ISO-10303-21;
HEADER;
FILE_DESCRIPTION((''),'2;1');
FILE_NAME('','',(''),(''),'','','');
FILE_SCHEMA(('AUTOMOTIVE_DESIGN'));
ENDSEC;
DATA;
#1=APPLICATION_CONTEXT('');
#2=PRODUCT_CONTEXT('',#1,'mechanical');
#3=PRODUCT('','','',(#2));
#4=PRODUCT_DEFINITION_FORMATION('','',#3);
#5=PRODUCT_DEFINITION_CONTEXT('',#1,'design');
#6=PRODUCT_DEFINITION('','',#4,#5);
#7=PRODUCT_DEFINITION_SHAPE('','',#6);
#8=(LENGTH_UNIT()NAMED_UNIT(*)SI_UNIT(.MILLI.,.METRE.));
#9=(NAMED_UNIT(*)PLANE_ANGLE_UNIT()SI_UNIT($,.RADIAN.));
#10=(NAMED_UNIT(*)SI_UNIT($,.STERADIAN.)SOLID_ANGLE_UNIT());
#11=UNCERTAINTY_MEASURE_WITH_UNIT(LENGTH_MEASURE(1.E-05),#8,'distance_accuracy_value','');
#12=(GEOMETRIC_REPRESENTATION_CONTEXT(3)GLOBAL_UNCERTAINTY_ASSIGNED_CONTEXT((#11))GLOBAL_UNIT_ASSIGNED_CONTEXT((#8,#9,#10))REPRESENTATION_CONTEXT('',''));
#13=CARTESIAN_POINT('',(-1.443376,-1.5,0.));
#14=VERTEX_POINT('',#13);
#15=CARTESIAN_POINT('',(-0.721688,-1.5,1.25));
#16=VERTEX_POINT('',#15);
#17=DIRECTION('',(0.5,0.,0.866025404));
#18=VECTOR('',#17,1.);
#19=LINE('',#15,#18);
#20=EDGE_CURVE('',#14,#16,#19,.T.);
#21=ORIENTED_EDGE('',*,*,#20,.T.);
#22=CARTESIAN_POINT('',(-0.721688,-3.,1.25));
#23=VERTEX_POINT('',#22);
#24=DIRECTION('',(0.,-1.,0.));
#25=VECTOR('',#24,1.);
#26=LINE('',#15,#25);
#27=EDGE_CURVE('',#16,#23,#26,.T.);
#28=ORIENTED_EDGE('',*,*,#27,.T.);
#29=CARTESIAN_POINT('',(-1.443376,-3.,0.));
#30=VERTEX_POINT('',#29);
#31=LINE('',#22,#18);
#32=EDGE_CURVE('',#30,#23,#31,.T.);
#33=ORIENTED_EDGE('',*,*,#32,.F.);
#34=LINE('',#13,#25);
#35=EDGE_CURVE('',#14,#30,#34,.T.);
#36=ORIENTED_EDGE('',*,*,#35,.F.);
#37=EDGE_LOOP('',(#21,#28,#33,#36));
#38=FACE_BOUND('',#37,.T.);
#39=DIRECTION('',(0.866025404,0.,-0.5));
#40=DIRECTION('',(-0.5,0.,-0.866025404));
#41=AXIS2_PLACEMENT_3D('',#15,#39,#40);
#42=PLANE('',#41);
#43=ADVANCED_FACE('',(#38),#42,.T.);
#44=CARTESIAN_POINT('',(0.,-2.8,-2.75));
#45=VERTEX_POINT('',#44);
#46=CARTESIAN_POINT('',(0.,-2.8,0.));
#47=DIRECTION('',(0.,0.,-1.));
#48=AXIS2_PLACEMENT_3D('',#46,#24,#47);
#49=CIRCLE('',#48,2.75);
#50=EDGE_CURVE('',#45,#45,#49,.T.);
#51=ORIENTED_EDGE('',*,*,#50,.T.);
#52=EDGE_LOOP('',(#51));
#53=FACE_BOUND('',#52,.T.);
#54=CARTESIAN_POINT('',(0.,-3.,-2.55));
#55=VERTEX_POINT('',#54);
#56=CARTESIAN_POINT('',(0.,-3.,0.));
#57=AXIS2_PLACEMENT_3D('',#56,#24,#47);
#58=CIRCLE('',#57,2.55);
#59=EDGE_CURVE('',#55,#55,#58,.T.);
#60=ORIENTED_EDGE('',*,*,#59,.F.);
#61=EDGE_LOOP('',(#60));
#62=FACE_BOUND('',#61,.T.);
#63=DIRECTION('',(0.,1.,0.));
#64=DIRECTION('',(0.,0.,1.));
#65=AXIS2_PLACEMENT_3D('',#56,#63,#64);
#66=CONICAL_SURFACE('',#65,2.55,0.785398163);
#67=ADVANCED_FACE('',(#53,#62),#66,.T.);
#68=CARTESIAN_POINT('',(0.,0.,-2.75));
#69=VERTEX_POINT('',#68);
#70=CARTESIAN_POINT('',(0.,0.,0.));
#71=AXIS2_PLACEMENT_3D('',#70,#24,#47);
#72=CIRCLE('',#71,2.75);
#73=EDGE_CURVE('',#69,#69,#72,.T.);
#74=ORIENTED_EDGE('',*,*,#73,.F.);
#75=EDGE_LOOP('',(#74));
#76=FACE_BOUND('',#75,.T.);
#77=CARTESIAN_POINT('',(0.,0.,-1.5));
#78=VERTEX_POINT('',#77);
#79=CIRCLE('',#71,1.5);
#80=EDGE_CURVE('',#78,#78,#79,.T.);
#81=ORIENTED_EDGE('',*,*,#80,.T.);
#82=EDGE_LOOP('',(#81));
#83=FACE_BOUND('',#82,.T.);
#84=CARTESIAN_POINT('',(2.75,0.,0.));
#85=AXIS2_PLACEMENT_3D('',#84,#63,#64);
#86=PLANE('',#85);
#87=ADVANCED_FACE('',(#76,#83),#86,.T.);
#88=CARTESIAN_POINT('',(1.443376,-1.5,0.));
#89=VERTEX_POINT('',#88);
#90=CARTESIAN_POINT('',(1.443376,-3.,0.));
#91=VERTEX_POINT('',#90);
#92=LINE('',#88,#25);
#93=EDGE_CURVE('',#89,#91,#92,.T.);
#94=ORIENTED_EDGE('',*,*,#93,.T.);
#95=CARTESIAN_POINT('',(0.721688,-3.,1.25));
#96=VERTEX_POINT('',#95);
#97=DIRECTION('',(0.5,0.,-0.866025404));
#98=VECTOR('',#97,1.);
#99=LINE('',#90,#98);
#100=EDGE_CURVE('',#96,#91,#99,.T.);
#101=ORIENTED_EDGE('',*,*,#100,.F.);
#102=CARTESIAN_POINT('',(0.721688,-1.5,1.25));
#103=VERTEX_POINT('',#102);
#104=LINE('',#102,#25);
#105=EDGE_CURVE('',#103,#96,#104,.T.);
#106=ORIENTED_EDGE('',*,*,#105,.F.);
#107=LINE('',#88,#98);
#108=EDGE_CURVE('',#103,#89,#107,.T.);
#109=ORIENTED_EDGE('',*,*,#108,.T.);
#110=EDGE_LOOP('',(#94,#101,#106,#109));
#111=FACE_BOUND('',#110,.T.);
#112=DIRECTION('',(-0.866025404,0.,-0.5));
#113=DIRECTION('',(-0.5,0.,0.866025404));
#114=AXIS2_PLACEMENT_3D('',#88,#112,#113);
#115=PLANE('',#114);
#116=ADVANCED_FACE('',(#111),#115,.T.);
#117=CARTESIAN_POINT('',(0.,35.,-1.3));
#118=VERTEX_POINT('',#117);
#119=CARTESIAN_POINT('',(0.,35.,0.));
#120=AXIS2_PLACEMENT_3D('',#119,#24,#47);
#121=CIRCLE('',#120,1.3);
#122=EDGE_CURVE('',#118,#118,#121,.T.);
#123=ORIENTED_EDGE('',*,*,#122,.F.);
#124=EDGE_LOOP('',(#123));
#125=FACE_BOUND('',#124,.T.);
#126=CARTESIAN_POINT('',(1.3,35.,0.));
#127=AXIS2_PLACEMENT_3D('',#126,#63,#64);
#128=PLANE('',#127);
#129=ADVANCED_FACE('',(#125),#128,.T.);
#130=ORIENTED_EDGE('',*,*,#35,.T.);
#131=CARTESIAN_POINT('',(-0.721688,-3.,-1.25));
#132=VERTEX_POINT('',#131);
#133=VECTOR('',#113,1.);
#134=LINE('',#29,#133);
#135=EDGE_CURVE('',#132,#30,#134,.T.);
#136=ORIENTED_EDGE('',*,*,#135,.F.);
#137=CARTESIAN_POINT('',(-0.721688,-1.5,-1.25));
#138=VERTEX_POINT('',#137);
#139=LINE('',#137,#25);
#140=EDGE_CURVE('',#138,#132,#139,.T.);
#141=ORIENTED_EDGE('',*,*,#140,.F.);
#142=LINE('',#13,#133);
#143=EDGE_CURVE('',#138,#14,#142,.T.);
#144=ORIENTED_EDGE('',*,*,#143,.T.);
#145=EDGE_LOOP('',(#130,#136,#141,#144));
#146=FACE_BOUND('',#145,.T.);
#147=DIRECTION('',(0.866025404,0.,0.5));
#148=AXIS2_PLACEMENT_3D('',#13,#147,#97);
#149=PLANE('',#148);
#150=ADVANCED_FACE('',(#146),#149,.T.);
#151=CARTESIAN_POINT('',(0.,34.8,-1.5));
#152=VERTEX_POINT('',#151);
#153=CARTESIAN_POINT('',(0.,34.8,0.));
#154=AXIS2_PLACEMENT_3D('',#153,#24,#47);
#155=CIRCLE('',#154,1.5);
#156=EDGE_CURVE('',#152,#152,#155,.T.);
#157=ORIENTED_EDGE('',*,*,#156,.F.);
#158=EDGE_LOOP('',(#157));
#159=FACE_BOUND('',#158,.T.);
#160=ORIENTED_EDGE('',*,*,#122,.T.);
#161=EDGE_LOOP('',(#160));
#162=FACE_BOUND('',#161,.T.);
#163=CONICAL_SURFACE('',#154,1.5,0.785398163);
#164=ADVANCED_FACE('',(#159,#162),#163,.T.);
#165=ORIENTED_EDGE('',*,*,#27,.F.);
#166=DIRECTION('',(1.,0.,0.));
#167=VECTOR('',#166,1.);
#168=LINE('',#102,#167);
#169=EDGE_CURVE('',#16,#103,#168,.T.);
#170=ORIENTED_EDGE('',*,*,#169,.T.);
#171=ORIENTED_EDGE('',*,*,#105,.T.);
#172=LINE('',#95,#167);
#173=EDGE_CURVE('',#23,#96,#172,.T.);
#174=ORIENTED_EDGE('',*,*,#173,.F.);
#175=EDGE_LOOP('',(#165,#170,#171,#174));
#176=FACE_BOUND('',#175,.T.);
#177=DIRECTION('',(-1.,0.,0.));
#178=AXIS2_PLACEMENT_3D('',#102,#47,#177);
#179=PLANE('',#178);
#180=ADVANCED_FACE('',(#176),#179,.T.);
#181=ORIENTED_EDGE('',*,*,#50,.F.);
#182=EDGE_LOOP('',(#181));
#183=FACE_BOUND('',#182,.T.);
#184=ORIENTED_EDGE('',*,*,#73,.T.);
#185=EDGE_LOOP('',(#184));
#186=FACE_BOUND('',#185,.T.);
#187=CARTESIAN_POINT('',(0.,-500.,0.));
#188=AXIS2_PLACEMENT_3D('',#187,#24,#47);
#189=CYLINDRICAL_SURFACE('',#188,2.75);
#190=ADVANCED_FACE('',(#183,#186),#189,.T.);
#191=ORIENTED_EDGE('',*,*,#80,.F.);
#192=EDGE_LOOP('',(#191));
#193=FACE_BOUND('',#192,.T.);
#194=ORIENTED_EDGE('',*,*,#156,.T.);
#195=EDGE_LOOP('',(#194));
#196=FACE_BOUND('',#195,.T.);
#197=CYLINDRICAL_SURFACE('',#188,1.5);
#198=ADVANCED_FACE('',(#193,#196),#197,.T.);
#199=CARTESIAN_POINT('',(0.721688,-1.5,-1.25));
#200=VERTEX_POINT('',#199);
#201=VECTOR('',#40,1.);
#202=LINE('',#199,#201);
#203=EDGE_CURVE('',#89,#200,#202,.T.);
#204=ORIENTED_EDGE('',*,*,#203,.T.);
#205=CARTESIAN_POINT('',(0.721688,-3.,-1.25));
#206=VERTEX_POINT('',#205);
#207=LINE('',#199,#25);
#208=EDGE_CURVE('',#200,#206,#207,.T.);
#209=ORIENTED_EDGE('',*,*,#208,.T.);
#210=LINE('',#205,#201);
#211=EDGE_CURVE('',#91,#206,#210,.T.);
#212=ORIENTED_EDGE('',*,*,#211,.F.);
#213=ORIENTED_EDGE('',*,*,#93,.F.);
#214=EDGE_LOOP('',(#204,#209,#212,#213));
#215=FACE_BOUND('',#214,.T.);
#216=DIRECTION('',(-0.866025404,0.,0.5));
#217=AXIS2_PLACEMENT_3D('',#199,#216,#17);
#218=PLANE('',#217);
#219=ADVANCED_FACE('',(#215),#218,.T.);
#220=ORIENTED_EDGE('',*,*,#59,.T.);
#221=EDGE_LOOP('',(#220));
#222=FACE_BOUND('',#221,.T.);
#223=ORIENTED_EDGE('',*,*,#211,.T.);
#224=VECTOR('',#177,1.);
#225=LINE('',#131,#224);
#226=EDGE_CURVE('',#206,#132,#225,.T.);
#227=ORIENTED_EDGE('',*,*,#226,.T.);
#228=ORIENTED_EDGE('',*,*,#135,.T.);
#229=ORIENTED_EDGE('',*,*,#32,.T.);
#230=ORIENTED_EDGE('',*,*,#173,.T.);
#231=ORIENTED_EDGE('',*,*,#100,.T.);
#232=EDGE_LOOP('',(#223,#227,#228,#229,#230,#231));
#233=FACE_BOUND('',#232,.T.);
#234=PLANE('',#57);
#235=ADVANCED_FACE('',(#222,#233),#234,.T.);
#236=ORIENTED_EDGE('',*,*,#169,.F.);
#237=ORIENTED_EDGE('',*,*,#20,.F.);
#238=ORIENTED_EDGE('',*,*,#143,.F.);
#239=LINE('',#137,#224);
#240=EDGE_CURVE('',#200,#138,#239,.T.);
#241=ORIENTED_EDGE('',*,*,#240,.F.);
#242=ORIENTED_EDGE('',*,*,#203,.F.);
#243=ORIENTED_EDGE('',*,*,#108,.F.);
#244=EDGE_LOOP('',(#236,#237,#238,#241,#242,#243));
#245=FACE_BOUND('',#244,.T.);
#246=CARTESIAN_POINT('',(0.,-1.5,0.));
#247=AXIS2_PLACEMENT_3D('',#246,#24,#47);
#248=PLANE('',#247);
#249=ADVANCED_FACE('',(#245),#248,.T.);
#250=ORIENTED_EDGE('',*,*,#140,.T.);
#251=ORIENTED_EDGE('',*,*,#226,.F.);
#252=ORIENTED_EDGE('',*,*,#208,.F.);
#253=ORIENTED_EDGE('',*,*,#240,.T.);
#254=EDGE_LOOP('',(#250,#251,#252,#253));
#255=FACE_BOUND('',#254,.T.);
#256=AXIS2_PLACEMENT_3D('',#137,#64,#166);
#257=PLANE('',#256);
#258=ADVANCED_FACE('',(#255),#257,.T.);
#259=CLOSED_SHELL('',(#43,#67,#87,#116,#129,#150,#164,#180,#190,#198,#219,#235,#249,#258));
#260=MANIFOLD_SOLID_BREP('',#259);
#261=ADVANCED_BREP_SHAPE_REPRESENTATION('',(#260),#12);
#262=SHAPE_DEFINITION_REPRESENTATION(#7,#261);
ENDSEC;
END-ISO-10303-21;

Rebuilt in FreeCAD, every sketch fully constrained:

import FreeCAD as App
import Part
import Sketcher
from FreeCAD import Vector
Q = App.Units.Quantity

doc = App.newDocument("Part")
body = doc.addObject("PartDesign::Body", "Body")

sketch1 = body.newObject("Sketcher::SketchObject", "Sketch")
sketch1.AttachmentSupport = (doc.getObject("XY_Plane"), [""])
sketch1.MapMode = "FlatFace"
sketch1.addGeometry([
    Part.LineSegment(Vector(0, -3, 0), Vector(2.55, -3, 0)),
    Part.LineSegment(Vector(2.55, -3, 0), Vector(2.75, -2.8, 0)),
    Part.LineSegment(Vector(2.75, -2.8, 0), Vector(2.75, 0, 0)),
    Part.LineSegment(Vector(2.75, 0, 0), Vector(1.5, 0, 0)),
    Part.LineSegment(Vector(1.5, 0, 0), Vector(1.5, 34.8, 0)),
    Part.LineSegment(Vector(1.5, 34.8, 0), Vector(1.3, 35, 0)),
    Part.LineSegment(Vector(1.3, 35, 0), Vector(0, 35, 0)),
    Part.LineSegment(Vector(0, 35, 0), Vector(0, -3, 0)),
], False)
sketch1.addConstraint([
    Sketcher.Constraint("Coincident", 0, 2, 1, 1),
    Sketcher.Constraint("Coincident", 1, 2, 2, 1),
    Sketcher.Constraint("Coincident", 2, 2, 3, 1),
    Sketcher.Constraint("Coincident", 3, 2, 4, 1),
    Sketcher.Constraint("Coincident", 4, 2, 5, 1),
    Sketcher.Constraint("Coincident", 5, 2, 6, 1),
    Sketcher.Constraint("Coincident", 6, 2, 7, 1),
    Sketcher.Constraint("Coincident", 7, 2, 0, 1),
    Sketcher.Constraint("Horizontal", 0),
    Sketcher.Constraint("Vertical", 2),
    Sketcher.Constraint("Horizontal", 3),
    Sketcher.Constraint("Vertical", 4),
    Sketcher.Constraint("Horizontal", 6),
    Sketcher.Constraint("Vertical", 7),
    Sketcher.Constraint("PointOnObject", 2, 2, -1),
    Sketcher.Constraint("PointOnObject", 6, 2, -2),
    Sketcher.Constraint("Perpendicular", 1, 5),
    Sketcher.Constraint("Equal", 1, 5),
    Sketcher.Constraint("DistanceY", 7, 2, 7, 1, 38.0),
    Sketcher.Constraint("Angle", 1, Q("45 deg")),
    Sketcher.Constraint("DistanceX", 6, 2, 6, 1, 1.3),
    Sketcher.Constraint("DistanceY", 2, 1, 2, 2, 2.8),
    Sketcher.Constraint("DistanceY", 4, 1, 4, 2, 34.8),
    Sketcher.Constraint("DistanceX", 0, 1, 0, 2, 2.55),
])
revolution = body.newObject("PartDesign::Revolution", "Revolution")
revolution.Profile = sketch1
revolution.ReferenceAxis = (sketch1, ["V_Axis"])
revolution.Angle = 360

sketch2 = body.newObject("Sketcher::SketchObject", "Sketch001")
sketch2.AttachmentSupport = (doc.getObject("XZ_Plane"), [""])
sketch2.MapMode = "FlatFace"
sketch2.AttachmentOffset = App.Placement(Vector(0, 0, 3), App.Rotation())
sketch2.addGeometry([
    Part.LineSegment(Vector(0.7, 1.2, 0), Vector(1.4, 0, 0)),
    Part.LineSegment(Vector(1.4, 0, 0), Vector(0.7, -1.2, 0)),
    Part.LineSegment(Vector(0.7, -1.2, 0), Vector(-0.7, -1.2, 0)),
    Part.LineSegment(Vector(-0.7, -1.2, 0), Vector(-1.4, 0, 0)),
    Part.LineSegment(Vector(-1.4, 0, 0), Vector(-0.7, 1.2, 0)),
    Part.LineSegment(Vector(-0.7, 1.2, 0), Vector(0.7, 1.2, 0)),
], False)
sketch2.addConstraint([
    Sketcher.Constraint("Coincident", 0, 2, 1, 1),
    Sketcher.Constraint("Coincident", 1, 2, 2, 1),
    Sketcher.Constraint("Coincident", 2, 2, 3, 1),
    Sketcher.Constraint("Coincident", 3, 2, 4, 1),
    Sketcher.Constraint("Coincident", 4, 2, 5, 1),
    Sketcher.Constraint("Coincident", 5, 2, 0, 1),
    Sketcher.Constraint("Horizontal", 2),
    Sketcher.Constraint("Horizontal", 5),
    Sketcher.Constraint("Symmetric", 0, 2, 3, 2, -1, 1),
    Sketcher.Constraint("Symmetric", 1, 2, 4, 2, -1, 1),
    Sketcher.Constraint("PointOnObject", 0, 2, -1),
    Sketcher.Constraint("Parallel", 0, 3),
    Sketcher.Constraint("Vertical", 2, 2, 4, 2),
    Sketcher.Constraint("Angle", 0, Q("-60 deg")),
    Sketcher.Constraint("DistanceY", 2, 2, 4, 2, 2.5),
    Sketcher.Constraint("DistanceX", 2, 2, 2, 1, 1.443376),
])
pocket1 = body.newObject("PartDesign::Pocket", "Pocket")
pocket1.Profile = sketch2
pocket1.Length = 1.5

doc.recompute()
